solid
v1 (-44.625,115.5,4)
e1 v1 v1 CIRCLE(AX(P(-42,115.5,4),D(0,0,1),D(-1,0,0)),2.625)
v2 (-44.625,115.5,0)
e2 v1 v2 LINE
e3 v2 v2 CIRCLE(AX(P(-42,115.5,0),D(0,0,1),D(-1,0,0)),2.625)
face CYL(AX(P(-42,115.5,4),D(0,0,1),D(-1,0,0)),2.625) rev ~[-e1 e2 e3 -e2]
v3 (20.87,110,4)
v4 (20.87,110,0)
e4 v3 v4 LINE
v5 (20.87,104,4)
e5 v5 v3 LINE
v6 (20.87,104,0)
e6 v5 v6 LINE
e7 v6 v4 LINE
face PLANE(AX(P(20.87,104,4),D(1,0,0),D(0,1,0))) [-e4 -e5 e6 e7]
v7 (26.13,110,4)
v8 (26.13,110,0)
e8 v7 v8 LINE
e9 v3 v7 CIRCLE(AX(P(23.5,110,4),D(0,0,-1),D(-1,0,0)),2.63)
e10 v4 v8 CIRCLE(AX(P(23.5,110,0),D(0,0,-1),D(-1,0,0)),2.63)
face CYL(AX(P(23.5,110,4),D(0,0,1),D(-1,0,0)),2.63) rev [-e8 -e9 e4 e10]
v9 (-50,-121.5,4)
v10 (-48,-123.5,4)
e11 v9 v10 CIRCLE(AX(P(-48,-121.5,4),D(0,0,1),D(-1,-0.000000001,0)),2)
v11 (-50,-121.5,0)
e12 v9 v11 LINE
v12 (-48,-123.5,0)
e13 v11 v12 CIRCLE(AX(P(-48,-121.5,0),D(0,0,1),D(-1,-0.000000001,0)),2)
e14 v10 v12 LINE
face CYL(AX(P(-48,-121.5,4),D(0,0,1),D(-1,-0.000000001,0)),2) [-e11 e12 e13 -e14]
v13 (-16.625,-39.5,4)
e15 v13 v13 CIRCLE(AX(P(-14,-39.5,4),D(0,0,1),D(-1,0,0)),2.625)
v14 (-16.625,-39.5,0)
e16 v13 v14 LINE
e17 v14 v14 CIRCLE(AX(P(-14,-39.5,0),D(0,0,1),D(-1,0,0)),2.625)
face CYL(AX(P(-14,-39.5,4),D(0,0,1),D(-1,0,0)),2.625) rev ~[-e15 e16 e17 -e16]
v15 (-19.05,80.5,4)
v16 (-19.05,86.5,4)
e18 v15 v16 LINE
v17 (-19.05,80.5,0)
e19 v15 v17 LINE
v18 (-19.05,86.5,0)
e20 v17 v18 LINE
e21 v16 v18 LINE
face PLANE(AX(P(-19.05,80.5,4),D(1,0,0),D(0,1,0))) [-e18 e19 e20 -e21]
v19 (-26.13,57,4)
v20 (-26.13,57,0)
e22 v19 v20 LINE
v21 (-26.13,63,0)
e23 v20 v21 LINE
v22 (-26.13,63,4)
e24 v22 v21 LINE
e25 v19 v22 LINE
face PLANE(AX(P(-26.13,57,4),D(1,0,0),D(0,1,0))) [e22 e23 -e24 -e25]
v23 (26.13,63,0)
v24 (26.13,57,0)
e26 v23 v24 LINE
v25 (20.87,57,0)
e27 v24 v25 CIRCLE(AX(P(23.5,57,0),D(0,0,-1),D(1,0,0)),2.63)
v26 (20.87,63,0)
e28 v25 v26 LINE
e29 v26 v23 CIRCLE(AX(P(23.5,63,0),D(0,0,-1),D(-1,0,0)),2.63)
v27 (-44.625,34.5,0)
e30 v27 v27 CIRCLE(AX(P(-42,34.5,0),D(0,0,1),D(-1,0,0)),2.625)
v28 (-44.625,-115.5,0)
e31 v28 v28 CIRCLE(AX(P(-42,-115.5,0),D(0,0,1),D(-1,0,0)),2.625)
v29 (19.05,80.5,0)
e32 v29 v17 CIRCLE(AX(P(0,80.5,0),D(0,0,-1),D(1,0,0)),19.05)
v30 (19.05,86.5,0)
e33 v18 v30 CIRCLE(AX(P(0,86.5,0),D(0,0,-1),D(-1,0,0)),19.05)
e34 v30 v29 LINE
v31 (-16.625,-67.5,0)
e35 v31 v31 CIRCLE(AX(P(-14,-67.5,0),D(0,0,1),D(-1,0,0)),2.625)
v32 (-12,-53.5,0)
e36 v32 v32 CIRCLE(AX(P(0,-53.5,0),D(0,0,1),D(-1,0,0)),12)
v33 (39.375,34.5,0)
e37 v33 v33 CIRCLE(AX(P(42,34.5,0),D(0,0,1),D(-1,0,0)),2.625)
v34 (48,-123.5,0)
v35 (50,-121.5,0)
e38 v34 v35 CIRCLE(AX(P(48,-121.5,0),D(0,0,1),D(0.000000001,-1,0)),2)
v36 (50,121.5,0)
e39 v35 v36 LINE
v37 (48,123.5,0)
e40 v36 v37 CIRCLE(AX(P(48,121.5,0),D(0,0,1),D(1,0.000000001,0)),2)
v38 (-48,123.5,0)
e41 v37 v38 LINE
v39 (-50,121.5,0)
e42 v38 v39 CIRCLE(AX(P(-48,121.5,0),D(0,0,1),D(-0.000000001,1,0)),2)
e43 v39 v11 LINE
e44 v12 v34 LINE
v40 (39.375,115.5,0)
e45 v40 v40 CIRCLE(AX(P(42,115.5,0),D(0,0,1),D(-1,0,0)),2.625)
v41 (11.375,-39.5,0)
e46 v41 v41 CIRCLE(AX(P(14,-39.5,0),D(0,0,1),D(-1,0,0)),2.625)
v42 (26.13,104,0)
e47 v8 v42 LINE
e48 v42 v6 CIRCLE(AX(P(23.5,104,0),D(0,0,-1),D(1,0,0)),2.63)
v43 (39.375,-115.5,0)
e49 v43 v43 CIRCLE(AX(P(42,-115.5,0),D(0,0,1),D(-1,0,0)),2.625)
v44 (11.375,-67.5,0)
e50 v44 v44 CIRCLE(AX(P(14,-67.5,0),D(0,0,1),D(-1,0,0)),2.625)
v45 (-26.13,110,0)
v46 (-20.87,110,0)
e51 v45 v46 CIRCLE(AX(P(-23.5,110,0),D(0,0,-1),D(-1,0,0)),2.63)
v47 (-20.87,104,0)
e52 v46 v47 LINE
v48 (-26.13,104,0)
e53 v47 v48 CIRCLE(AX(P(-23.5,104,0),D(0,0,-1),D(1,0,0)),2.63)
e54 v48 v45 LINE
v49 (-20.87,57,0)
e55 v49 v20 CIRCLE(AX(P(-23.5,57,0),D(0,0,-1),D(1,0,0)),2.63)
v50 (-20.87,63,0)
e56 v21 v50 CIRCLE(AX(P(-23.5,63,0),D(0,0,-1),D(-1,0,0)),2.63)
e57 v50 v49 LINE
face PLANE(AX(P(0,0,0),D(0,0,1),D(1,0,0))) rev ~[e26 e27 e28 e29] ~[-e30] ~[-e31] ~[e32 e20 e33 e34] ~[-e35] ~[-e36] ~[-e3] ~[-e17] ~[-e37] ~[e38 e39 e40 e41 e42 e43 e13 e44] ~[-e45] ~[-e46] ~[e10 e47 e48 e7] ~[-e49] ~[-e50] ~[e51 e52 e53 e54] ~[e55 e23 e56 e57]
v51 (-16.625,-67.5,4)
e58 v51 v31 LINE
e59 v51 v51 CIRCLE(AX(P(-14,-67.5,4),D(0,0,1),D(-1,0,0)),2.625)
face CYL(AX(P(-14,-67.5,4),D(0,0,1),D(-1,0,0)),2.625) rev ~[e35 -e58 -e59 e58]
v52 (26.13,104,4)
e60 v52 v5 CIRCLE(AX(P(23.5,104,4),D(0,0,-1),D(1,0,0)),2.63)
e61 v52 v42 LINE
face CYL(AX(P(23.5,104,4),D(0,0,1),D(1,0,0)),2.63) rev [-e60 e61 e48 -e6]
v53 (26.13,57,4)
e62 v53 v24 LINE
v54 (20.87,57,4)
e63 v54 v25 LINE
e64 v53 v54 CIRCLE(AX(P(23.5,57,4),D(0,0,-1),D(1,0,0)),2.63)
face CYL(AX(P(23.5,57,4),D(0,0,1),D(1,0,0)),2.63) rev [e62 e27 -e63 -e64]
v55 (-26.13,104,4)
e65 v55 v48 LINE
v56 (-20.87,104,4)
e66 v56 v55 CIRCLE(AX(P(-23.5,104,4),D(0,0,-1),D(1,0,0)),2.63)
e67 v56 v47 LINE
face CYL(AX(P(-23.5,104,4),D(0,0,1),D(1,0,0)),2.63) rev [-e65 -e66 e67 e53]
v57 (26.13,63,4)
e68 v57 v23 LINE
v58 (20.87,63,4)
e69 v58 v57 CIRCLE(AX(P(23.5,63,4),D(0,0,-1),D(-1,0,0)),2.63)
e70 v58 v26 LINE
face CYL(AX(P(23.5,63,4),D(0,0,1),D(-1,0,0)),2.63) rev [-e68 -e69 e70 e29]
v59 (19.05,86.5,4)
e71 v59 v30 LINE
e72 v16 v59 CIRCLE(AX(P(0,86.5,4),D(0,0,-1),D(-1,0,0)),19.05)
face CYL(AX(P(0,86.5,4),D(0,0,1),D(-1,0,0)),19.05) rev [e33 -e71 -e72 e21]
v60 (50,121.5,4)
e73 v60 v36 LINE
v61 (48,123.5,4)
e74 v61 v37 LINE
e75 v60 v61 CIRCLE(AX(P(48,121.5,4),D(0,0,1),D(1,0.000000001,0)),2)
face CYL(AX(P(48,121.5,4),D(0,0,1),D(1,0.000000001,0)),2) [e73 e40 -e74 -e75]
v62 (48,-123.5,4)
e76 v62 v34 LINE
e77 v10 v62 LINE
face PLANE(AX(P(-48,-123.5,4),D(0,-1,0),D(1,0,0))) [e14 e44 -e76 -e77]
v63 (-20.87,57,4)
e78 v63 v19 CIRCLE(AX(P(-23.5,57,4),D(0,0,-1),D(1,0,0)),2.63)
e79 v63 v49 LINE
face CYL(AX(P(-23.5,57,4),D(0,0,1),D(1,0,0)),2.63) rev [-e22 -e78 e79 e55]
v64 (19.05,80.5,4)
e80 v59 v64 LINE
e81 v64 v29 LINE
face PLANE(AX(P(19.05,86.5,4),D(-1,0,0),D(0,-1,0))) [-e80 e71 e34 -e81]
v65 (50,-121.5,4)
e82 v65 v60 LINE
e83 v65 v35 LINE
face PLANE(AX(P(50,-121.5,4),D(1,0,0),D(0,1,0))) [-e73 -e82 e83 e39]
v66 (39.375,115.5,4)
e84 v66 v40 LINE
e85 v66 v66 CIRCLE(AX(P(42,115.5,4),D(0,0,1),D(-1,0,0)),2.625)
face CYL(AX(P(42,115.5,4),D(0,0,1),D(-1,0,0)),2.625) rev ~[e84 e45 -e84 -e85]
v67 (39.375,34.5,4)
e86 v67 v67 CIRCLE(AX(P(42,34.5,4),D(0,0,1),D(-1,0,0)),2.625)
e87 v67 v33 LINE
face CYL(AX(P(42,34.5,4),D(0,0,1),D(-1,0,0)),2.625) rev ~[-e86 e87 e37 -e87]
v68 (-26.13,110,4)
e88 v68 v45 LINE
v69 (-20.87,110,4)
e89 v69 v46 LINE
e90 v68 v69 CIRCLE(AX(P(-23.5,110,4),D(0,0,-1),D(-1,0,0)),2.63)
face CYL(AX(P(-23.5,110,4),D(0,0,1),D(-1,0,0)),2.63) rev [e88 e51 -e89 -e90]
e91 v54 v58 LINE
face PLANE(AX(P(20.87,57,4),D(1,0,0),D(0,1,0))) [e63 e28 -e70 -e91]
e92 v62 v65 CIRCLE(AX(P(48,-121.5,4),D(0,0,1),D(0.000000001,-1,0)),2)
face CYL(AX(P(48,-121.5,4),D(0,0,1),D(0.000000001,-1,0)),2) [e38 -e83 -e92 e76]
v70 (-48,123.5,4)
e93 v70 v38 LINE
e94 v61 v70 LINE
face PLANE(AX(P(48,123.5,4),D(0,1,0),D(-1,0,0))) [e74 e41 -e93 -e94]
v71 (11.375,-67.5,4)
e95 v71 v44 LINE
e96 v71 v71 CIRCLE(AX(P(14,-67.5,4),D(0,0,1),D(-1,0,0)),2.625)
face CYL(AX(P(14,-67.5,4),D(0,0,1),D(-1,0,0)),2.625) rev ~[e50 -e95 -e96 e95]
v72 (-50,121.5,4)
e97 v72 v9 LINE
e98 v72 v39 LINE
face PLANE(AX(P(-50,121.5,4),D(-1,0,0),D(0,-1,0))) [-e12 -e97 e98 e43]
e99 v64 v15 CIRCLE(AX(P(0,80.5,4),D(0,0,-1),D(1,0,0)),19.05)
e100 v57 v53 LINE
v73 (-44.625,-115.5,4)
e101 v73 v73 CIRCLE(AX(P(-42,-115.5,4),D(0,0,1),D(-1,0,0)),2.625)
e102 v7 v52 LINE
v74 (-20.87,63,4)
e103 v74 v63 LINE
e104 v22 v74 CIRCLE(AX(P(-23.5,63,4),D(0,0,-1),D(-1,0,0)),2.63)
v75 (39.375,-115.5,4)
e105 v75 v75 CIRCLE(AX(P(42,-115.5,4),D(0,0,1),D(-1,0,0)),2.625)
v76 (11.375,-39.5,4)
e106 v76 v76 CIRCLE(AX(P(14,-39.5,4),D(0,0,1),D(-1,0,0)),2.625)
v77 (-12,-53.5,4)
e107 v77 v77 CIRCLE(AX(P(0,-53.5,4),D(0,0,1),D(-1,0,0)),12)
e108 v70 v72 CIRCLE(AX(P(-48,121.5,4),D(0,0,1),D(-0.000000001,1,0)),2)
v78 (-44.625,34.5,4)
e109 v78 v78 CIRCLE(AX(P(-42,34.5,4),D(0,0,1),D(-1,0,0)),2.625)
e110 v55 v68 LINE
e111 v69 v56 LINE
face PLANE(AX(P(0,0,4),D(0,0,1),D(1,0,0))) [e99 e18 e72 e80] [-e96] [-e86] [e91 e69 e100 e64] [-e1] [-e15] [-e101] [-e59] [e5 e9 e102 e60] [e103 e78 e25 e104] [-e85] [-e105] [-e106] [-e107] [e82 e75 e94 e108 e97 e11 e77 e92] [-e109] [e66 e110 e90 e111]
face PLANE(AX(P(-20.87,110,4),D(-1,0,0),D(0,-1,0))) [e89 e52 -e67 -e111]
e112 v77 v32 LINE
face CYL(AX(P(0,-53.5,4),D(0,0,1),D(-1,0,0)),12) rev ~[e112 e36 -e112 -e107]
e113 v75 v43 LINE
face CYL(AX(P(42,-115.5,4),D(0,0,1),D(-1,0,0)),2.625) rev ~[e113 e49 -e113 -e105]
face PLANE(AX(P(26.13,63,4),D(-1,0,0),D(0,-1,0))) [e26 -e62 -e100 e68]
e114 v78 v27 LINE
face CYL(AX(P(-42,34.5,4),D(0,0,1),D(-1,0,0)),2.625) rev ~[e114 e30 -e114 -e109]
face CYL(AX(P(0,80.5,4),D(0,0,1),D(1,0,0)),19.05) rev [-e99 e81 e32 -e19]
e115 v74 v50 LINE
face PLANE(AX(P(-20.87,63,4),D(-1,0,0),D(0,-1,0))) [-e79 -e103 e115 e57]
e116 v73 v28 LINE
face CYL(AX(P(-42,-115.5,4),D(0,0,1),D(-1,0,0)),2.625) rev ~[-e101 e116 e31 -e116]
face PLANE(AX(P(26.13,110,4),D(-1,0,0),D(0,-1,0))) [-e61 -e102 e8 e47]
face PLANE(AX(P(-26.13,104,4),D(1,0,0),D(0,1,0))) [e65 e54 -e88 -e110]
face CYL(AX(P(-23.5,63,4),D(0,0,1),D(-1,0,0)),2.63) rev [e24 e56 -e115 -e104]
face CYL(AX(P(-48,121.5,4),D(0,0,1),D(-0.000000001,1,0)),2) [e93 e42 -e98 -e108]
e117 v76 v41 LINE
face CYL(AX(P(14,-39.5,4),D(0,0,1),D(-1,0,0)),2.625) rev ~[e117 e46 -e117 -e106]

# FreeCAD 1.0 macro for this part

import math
import FreeCAD as App
import Part
import Sketcher

doc = App.newDocument("Part")
body = doc.addObject("PartDesign::Body", "Body")

# Sketch on XY plane
sketch1 = body.newObject("Sketcher::SketchObject", "Sketch")
sketch1.AttachmentSupport = (doc.getObject("XY_Plane"), [""])
sketch1.MapMode = "FlatFace"
sketch1.AttachmentOffset = App.Placement(App.Vector(0, 0, 4), App.Rotation())
sketch1.addGeometry([
    Part.LineSegment(App.Vector(-48, -123.5, 0), App.Vector(48, -123.5, 0)),  # 0
    Part.ArcOfCircle(Part.Circle(App.Vector(48, -121.5, 0), App.Vector(0, 0, 1), 2), math.radians(-90), math.radians(0)),  # 1
    Part.LineSegment(App.Vector(50, -121.5, 0), App.Vector(50, 121.5, 0)),  # 2
    Part.ArcOfCircle(Part.Circle(App.Vector(48, 121.5, 0), App.Vector(0, 0, 1), 2), math.radians(0), math.radians(90)),  # 3
    Part.LineSegment(App.Vector(48, 123.5, 0), App.Vector(-48, 123.5, 0)),  # 4
    Part.ArcOfCircle(Part.Circle(App.Vector(-48, 121.5, 0), App.Vector(0, 0, 1), 2), math.radians(90), math.radians(180)),  # 5
    Part.LineSegment(App.Vector(-50, 121.5, 0), App.Vector(-50, -121.5, 0)),  # 6
    Part.ArcOfCircle(Part.Circle(App.Vector(-48, -121.5, 0), App.Vector(0, 0, 1), 2), math.radians(-180), math.radians(-90)),  # 7
    Part.Circle(App.Vector(-42, -115.5, 0), App.Vector(0, 0, 1), 2.6),  # 8
    Part.Circle(App.Vector(-14, -67.5, 0), App.Vector(0, 0, 1), 2.6),  # 9
    Part.Circle(App.Vector(-14, -39.5, 0), App.Vector(0, 0, 1), 2.6),  # 10
    Part.Circle(App.Vector(14, -67.5, 0), App.Vector(0, 0, 1), 2.6),  # 11
    Part.Circle(App.Vector(42, -115.5, 0), App.Vector(0, 0, 1), 2.6),  # 12
    Part.Circle(App.Vector(0, -53.5, 0), App.Vector(0, 0, 1), 12),  # 13
    Part.Circle(App.Vector(14, -39.5, 0), App.Vector(0, 0, 1), 2.6),  # 14
    Part.Circle(App.Vector(-42, 34.5, 0), App.Vector(0, 0, 1), 2.6),  # 15
    Part.ArcOfCircle(Part.Circle(App.Vector(-23.5, 57, 0), App.Vector(0, 0, 1), 2.6), math.radians(180), math.radians(360)),  # 16
    Part.LineSegment(App.Vector(-26.1, 57, 0), App.Vector(-26.1, 63, 0)),  # 17
    Part.ArcOfCircle(Part.Circle(App.Vector(-23.5, 63, 0), App.Vector(0, 0, 1), 2.6), math.radians(0), math.radians(180)),  # 18
    Part.LineSegment(App.Vector(-20.9, 63, 0), App.Vector(-20.9, 57, 0)),  # 19
    Part.Circle(App.Vector(-42, 115.5, 0), App.Vector(0, 0, 1), 2.6),  # 20
    Part.ArcOfCircle(Part.Circle(App.Vector(-23.5, 110, 0), App.Vector(0, 0, 1), 2.6), math.radians(0), math.radians(180)),  # 21
    Part.LineSegment(App.Vector(-20.9, 110, 0), App.Vector(-20.9, 104, 0)),  # 22
    Part.ArcOfCircle(Part.Circle(App.Vector(-23.5, 104, 0), App.Vector(0, 0, 1), 2.6), math.radians(180), math.radians(360)),  # 23
    Part.LineSegment(App.Vector(-26.1, 104, 0), App.Vector(-26.1, 110, 0)),  # 24
    Part.Circle(App.Vector(42, 34.5, 0), App.Vector(0, 0, 1), 2.6),  # 25
    Part.ArcOfCircle(Part.Circle(App.Vector(0, 80.5, 0), App.Vector(0, 0, 1), 19.1), math.radians(180), math.radians(360)),  # 26
    Part.LineSegment(App.Vector(-19.1, 80.5, 0), App.Vector(-19.1, 86.5, 0)),  # 27
    Part.ArcOfCircle(Part.Circle(App.Vector(0, 86.5, 0), App.Vector(0, 0, 1), 19.1), math.radians(0), math.radians(180)),  # 28
    Part.LineSegment(App.Vector(19.1, 86.5, 0), App.Vector(19.1, 80.5, 0)),  # 29
    Part.ArcOfCircle(Part.Circle(App.Vector(23.5, 63, 0), App.Vector(0, 0, 1), 2.6), math.radians(0), math.radians(180)),  # 30
    Part.LineSegment(App.Vector(26.1, 63, 0), App.Vector(26.1, 57, 0)),  # 31
    Part.ArcOfCircle(Part.Circle(App.Vector(23.5, 57, 0), App.Vector(0, 0, 1), 2.6), math.radians(180), math.radians(360)),  # 32
    Part.LineSegment(App.Vector(20.9, 57, 0), App.Vector(20.9, 63, 0)),  # 33
    Part.ArcOfCircle(Part.Circle(App.Vector(23.5, 104, 0), App.Vector(0, 0, 1), 2.6), math.radians(180), math.radians(360)),  # 34
    Part.LineSegment(App.Vector(20.9, 104, 0), App.Vector(20.9, 110, 0)),  # 35
    Part.ArcOfCircle(Part.Circle(App.Vector(23.5, 110, 0), App.Vector(0, 0, 1), 2.6), math.radians(0), math.radians(180)),  # 36
    Part.LineSegment(App.Vector(26.1, 110, 0), App.Vector(26.1, 104, 0)),  # 37
    Part.Circle(App.Vector(42, 115.5, 0), App.Vector(0, 0, 1), 2.6),  # 38
], False)
sketch1.addConstraint([
    Sketcher.Constraint("Tangent", 0, 2, 1, 1),
    Sketcher.Constraint("Tangent", 1, 2, 2, 1),
    Sketcher.Constraint("Tangent", 2, 2, 3, 1),
    Sketcher.Constraint("Tangent", 3, 2, 4, 1),
    Sketcher.Constraint("Tangent", 4, 2, 5, 1),
    Sketcher.Constraint("Tangent", 5, 2, 6, 1),
    Sketcher.Constraint("Tangent", 6, 2, 7, 1),
    Sketcher.Constraint("Tangent", 7, 2, 0, 1),
    Sketcher.Constraint("Tangent", 16, 1, 17, 1),
    Sketcher.Constraint("Tangent", 17, 2, 18, 2),
    Sketcher.Constraint("Tangent", 18, 1, 19, 1),
    Sketcher.Constraint("Tangent", 19, 2, 16, 2),
    Sketcher.Constraint("Tangent", 21, 1, 22, 1),
    Sketcher.Constraint("Tangent", 22, 2, 23, 2),
    Sketcher.Constraint("Tangent", 23, 1, 24, 1),
    Sketcher.Constraint("Tangent", 24, 2, 21, 2),
    Sketcher.Constraint("Tangent", 26, 1, 27, 1),
    Sketcher.Constraint("Tangent", 27, 2, 28, 2),
    Sketcher.Constraint("Tangent", 28, 1, 29, 1),
    Sketcher.Constraint("Tangent", 29, 2, 26, 2),
    Sketcher.Constraint("Tangent", 30, 1, 31, 1),
    Sketcher.Constraint("Tangent", 31, 2, 32, 2),
    Sketcher.Constraint("Tangent", 32, 1, 33, 1),
    Sketcher.Constraint("Tangent", 33, 2, 30, 2),
    Sketcher.Constraint("Tangent", 34, 1, 35, 1),
    Sketcher.Constraint("Tangent", 35, 2, 36, 2),
    Sketcher.Constraint("Tangent", 36, 1, 37, 1),
    Sketcher.Constraint("Tangent", 37, 2, 34, 2),
    Sketcher.Constraint("Horizontal", 0),
    Sketcher.Constraint("Vertical", 2),
    Sketcher.Constraint("Horizontal", 4),
    Sketcher.Constraint("Vertical", 6),
    Sketcher.Constraint("Vertical", 17),
    Sketcher.Constraint("Vertical", 19),
    Sketcher.Constraint("Vertical", 22),
    Sketcher.Constraint("Vertical", 24),
    Sketcher.Constraint("Vertical", 27),
    Sketcher.Constraint("Vertical", 29),
    Sketcher.Constraint("Vertical", 31),
    Sketcher.Constraint("Vertical", 33),
    Sketcher.Constraint("Vertical", 35),
    Sketcher.Constraint("Vertical", 37),
    Sketcher.Constraint("Equal", 1, 3),
    Sketcher.Constraint("Equal", 3, 5),
    Sketcher.Constraint("Equal", 5, 7),
    Sketcher.Constraint("Equal", 8, 9),
    Sketcher.Constraint("Equal", 9, 10),
    Sketcher.Constraint("Equal", 10, 11),
    Sketcher.Constraint("Equal", 11, 12),
    Sketcher.Constraint("Equal", 12, 14),
    Sketcher.Constraint("Equal", 14, 15),
    Sketcher.Constraint("Equal", 15, 20),
    Sketcher.Constraint("Equal", 18, 21),
    Sketcher.Constraint("Equal", 20, 25),
    Sketcher.Constraint("Equal", 23, 30),
    Sketcher.Constraint("Equal", 32, 34),
    Sketcher.Constraint("Equal", 25, 38),
    Sketcher.Constraint("Symmetric", 1, 3, 5, 3, -1, 1),
    Sketcher.Constraint("Symmetric", 12, 3, 20, 3, -1, 1),
    Sketcher.Constraint("Symmetric", 8, 3, 38, 3, -1, 1),
    Sketcher.Constraint("Symmetric", 9, 3, 11, 3, -2),
    Sketcher.Constraint("Symmetric", 8, 3, 12, 3, -2),
    Sketcher.Constraint("Symmetric", 10, 3, 14, 3, -2),
    Sketcher.Constraint("Symmetric", 15, 3, 25, 3, -2),
    Sketcher.Constraint("Symmetric", 18, 3, 30, 3, -2),
    Sketcher.Constraint("Symmetric", 23, 3, 34, 3, -2),
    Sketcher.Constraint("PointOnObject", 13, 3, -2),
    Sketcher.Constraint("PointOnObject", 26, 3, -2),
    Sketcher.Constraint("Horizontal", 16, 3, 32, 3),
    Sketcher.Constraint("Horizontal", 21, 3, 36, 3),
    Sketcher.Constraint("Vertical", 9, 3, 10, 3),
    Sketcher.Constraint("Vertical", 8, 3, 15, 3),
    Sketcher.Constraint("Vertical", 18, 3, 21, 3),
    Sketcher.Constraint("Equal", 19, 22),
    Sketcher.Constraint("Equal", 24, 27),
    Sketcher.Constraint("Diameter", 13, 24.0),
    Sketcher.Constraint("Radius", 1, 2.0),
    Sketcher.Constraint("Diameter", 8, 5.25),
    Sketcher.Constraint("DistanceX", 0, 1, 0, 2, 96.0),
    Sketcher.Constraint("DistanceY", 2, 1, 2, 2, 243.0),
    Sketcher.Constraint("DistanceY", 17, 1, 17, 2, 6.0),
    Sketcher.Constraint("Radius", 16, 2.63),
    Sketcher.Constraint("Radius", 26, 19.05),
    Sketcher.Constraint("DistanceX", 8, 3, -1, 1, 42.0),
    Sketcher.Constraint("DistanceX", 9, 3, -1, 1, 14.0),
    Sketcher.Constraint("DistanceY", -1, 1, 16, 3, 57.0),
    Sketcher.Constraint("DistanceY", -1, 1, 21, 3, 110.0),
    Sketcher.Constraint("DistanceY", 7, 3, 8, 3, 6.0),
    Sketcher.Constraint("DistanceY", 8, 3, 9, 3, 48.0),
    Sketcher.Constraint("DistanceY", 9, 3, 10, 3, 28.0),
    Sketcher.Constraint("DistanceY", 9, 3, 13, 3, 14.0),
    Sketcher.Constraint("DistanceY", 10, 3, 15, 3, 74.0),
    Sketcher.Constraint("DistanceY", 26, 3, 20, 3, 35.0),
    Sketcher.Constraint("DistanceX", 18, 3, 30, 3, 47.0),
])
pad1 = body.newObject("PartDesign::Pad", "Pad")
pad1.Profile = sketch1
pad1.Length = 4
pad1.Reversed = True

doc.recompute()
